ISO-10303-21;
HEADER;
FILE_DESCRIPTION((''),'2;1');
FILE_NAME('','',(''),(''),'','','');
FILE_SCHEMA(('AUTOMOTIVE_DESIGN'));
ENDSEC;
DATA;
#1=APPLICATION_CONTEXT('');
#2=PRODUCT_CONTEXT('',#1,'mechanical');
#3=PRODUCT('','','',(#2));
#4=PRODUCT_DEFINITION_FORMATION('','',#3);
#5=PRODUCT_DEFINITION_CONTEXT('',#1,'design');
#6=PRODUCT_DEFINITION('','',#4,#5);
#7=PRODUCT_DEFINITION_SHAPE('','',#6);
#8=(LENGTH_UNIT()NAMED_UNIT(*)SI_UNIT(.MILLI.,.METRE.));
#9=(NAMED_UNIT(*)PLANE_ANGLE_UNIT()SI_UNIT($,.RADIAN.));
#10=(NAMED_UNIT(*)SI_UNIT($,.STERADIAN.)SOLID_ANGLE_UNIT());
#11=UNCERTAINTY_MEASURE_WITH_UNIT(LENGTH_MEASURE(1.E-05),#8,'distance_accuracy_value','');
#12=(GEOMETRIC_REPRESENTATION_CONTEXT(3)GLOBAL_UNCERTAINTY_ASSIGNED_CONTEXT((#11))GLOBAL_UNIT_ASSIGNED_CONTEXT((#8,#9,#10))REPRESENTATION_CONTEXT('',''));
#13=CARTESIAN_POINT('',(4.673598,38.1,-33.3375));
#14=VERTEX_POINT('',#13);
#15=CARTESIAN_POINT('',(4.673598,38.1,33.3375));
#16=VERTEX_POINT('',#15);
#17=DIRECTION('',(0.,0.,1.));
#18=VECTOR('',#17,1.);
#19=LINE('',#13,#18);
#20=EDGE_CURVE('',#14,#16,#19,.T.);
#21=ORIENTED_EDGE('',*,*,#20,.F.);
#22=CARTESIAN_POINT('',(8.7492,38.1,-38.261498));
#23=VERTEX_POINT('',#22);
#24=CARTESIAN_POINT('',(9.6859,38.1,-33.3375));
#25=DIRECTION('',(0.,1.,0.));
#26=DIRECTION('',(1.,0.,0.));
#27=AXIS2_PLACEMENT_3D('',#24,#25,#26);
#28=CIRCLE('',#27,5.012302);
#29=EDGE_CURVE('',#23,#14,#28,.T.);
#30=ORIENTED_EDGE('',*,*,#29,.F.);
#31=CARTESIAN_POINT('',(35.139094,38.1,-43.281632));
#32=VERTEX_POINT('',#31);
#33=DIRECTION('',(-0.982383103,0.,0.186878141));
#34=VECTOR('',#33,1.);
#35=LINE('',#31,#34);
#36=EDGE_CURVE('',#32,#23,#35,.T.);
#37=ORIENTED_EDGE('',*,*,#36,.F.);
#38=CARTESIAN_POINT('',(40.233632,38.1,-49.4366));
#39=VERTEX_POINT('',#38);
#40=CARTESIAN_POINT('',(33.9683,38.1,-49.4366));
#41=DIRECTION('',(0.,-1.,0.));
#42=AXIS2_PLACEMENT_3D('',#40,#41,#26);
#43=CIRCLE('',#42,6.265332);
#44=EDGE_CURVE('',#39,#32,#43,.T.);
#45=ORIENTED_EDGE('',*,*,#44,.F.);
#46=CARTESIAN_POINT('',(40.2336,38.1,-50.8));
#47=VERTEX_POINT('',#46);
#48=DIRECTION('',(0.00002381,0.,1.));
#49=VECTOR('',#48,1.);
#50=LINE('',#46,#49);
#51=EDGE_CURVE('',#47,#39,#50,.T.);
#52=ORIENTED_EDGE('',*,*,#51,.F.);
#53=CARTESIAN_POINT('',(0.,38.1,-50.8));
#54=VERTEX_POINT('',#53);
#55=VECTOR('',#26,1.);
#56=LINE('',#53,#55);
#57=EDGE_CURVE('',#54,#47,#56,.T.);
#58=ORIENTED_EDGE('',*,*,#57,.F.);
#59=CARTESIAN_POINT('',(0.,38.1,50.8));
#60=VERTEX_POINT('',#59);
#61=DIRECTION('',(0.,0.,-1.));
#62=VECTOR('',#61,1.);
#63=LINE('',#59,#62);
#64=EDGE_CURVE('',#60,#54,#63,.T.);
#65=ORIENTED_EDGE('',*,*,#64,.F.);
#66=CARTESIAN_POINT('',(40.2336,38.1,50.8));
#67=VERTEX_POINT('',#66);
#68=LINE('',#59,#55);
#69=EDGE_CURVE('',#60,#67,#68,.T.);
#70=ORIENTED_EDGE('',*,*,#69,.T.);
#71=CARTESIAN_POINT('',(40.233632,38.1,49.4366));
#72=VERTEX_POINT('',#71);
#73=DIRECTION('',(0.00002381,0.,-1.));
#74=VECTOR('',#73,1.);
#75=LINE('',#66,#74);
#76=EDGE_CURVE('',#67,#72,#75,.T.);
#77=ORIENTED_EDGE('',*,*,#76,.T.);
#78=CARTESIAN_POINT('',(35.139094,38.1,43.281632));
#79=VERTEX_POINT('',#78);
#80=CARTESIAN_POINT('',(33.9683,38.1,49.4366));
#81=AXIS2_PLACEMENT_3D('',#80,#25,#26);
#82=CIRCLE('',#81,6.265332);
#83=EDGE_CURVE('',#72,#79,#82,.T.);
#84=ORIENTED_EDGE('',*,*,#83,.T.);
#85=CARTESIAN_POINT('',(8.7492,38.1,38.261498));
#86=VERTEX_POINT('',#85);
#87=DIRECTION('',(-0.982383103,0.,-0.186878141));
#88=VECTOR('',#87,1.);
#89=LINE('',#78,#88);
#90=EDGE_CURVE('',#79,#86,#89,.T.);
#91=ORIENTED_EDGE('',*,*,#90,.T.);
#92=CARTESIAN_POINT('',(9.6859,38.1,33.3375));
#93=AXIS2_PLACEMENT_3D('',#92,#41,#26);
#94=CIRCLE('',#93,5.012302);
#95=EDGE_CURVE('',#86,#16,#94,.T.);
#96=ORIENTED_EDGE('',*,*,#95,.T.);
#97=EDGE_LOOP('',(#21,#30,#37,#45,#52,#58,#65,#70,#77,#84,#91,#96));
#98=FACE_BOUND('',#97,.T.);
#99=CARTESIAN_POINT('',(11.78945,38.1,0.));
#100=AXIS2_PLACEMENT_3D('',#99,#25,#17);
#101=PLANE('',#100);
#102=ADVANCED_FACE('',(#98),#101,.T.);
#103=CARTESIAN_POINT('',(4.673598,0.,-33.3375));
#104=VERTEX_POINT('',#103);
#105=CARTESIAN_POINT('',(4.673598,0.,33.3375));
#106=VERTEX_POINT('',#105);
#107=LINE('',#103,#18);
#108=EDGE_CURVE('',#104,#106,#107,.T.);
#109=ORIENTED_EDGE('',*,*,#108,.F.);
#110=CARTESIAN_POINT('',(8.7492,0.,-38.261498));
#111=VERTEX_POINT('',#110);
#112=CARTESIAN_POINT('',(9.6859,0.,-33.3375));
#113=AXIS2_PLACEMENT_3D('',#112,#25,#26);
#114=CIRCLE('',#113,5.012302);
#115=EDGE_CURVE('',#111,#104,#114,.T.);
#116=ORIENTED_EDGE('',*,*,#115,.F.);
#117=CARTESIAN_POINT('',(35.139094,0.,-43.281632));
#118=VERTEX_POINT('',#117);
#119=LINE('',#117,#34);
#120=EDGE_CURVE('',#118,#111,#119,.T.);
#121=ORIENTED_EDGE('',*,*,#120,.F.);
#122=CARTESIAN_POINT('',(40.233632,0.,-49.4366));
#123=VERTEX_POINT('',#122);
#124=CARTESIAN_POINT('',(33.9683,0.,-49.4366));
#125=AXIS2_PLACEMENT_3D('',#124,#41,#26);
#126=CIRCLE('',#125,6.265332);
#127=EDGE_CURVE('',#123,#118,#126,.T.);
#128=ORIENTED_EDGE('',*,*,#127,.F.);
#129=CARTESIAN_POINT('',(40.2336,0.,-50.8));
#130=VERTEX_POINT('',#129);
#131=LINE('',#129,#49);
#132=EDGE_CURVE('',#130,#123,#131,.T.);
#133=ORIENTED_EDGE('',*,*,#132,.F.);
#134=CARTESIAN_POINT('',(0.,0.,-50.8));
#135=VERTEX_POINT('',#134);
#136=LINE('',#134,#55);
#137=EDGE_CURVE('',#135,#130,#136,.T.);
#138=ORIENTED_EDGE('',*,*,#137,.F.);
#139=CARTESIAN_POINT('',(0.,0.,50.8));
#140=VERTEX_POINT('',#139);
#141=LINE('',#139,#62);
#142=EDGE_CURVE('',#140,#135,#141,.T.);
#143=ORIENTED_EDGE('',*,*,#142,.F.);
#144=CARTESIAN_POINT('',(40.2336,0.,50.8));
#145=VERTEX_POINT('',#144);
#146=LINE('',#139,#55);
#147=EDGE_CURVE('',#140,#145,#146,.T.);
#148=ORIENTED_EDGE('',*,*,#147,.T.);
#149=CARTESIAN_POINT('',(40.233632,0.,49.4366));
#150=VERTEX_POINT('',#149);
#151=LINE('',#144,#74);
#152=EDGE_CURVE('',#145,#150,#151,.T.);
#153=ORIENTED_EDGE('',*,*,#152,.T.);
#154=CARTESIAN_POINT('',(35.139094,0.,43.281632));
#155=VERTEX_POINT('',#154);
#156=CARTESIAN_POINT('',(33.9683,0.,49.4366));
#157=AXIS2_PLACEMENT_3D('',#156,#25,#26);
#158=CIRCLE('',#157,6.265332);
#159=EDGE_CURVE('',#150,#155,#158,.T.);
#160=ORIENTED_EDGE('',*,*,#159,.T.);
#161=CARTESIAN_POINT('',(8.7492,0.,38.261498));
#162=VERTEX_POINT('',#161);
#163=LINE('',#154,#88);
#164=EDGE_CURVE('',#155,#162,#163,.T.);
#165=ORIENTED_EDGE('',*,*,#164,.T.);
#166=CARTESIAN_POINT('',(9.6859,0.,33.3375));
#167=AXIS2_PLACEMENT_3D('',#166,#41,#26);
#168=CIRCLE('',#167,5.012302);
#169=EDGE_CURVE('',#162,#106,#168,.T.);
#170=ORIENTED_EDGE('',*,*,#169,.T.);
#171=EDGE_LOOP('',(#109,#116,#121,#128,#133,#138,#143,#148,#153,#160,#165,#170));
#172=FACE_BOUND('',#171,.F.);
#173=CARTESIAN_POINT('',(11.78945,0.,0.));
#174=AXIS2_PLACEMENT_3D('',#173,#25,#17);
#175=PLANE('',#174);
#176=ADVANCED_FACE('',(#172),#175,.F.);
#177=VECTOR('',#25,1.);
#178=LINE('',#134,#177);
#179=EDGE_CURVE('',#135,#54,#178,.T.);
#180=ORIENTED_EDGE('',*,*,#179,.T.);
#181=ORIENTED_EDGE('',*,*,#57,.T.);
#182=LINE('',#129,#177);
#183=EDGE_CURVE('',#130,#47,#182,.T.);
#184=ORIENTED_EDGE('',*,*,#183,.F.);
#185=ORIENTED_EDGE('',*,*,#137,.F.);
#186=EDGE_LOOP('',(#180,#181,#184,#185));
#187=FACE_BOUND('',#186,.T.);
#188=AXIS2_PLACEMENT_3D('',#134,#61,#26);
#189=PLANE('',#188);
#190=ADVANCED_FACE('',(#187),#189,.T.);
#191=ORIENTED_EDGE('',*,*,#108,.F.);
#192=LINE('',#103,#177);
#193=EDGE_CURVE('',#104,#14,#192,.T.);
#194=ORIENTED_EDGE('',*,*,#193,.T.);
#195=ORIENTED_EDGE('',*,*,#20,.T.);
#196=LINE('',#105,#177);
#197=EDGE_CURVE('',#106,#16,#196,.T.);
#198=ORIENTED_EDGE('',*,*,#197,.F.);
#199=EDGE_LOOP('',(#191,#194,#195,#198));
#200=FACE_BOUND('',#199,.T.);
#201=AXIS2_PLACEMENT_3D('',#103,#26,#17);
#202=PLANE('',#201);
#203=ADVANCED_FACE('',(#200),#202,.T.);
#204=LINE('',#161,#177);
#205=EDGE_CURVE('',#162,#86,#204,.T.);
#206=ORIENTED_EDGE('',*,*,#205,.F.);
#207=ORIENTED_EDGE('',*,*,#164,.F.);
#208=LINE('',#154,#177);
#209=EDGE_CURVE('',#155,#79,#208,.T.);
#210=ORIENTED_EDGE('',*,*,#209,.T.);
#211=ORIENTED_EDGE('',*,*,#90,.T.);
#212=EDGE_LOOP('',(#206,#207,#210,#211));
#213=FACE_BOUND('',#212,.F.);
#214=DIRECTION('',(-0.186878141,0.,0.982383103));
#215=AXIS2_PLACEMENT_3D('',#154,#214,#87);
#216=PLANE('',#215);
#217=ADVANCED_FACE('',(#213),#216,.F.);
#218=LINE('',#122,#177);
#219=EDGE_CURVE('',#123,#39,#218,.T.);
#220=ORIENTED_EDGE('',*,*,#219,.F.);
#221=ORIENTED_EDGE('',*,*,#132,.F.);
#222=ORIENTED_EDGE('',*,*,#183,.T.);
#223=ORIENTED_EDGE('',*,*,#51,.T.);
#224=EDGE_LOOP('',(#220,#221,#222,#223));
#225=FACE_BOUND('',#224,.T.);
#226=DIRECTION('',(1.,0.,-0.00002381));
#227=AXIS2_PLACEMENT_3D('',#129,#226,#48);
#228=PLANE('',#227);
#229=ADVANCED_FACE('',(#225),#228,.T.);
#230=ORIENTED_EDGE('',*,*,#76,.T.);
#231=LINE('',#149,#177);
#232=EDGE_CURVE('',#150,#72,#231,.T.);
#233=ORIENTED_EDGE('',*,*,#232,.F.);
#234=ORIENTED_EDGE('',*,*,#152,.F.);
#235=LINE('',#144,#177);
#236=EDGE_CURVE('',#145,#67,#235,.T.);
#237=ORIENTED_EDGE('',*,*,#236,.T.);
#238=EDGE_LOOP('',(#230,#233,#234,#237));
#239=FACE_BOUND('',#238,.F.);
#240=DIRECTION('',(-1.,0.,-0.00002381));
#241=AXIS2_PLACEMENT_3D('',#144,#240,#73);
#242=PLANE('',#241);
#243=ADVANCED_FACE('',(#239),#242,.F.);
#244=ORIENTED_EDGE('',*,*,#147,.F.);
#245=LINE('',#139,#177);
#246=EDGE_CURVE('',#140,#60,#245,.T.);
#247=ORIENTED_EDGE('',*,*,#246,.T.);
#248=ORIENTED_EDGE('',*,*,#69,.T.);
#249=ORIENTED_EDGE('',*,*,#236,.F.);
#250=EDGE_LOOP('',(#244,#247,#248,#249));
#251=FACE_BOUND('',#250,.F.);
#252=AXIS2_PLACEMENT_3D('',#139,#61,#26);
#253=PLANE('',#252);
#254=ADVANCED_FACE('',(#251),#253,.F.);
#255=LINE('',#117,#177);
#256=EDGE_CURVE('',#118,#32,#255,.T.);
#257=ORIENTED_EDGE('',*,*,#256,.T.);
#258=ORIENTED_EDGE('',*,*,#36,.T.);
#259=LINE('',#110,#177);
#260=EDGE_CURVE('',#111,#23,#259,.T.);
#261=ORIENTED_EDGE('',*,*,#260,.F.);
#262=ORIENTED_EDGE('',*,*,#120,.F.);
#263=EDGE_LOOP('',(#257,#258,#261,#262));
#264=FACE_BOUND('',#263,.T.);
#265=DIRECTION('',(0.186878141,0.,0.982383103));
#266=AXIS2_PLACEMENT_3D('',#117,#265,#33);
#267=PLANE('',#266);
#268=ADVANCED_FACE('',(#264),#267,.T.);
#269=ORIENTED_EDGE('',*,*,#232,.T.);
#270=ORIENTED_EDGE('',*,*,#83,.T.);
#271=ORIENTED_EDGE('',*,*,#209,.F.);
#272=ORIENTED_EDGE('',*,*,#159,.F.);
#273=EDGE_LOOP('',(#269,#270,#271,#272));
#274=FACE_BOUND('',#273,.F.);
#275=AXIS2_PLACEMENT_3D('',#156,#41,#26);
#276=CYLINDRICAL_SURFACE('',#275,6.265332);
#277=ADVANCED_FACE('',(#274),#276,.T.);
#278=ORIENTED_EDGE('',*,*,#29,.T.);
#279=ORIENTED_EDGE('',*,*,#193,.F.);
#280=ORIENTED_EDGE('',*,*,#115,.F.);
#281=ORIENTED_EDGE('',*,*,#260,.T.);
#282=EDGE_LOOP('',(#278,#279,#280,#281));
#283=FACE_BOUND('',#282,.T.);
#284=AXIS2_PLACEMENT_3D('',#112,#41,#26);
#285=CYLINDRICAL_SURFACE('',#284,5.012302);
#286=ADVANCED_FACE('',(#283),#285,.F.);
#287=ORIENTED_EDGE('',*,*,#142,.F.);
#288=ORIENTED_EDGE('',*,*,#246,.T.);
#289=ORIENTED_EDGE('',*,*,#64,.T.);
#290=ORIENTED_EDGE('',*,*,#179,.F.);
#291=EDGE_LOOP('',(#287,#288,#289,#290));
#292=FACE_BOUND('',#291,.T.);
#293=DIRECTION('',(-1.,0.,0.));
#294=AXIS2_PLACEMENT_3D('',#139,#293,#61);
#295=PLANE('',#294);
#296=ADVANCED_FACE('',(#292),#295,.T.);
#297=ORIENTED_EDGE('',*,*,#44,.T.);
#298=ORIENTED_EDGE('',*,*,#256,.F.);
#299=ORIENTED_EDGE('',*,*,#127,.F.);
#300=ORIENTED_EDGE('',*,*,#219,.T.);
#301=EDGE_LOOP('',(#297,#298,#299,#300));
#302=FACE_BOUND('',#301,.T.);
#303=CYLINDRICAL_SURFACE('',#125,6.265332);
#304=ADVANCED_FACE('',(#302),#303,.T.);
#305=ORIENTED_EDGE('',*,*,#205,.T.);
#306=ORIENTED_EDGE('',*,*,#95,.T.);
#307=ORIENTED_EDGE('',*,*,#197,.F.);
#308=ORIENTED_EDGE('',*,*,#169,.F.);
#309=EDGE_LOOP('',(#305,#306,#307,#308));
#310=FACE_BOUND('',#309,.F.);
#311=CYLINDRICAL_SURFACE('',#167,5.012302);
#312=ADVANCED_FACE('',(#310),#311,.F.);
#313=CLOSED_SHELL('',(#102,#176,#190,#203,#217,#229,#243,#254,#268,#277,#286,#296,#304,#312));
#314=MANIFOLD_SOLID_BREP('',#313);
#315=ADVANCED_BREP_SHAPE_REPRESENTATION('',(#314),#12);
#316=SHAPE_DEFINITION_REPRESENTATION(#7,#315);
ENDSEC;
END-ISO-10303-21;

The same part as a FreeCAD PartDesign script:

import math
import FreeCAD as App
import Part
import Sketcher

V = App.Vector
Q = App.Units.Quantity

doc = App.newDocument("Part")
body = doc.addObject("PartDesign::Body", "Body")

sketch1 = doc.addObject("Sketcher::SketchObject", "Sketch")
body.addObject(sketch1)
sketch1.AttachmentSupport = (doc.XZ_Plane, [""])
sketch1.MapMode = "FlatFace"
sketch1.addGeometry([
    Part.LineSegment(V(40.2336, 50.8, 0), V(0, 50.8, 0)),
    Part.LineSegment(V(0, 50.8, 0), V(0, -50.8, 0)),
    Part.LineSegment(V(0, -50.8, 0), V(40.2336, -50.8, 0)),
    Part.LineSegment(V(40.2336, -50.8, 0), V(40.2336, -49.4366, 0)),
    Part.ArcOfCircle(Part.Circle(V(33.9683, -49.4366, 0), V(0, 0, 1), 6.2653), math.radians(0), math.radians(79.229904)),
    Part.LineSegment(V(35.1391, -43.2816, 0), V(8.7492, -38.2615, 0)),
    Part.ArcOfCircle(Part.Circle(V(9.6859, -33.3375, 0), V(0, 0, 1), 5.012303), math.radians(180), math.radians(259.229231)),
    Part.LineSegment(V(4.6736, -33.3375, 0), V(4.6736, 33.3375, 0)),
    Part.ArcOfCircle(Part.Circle(V(9.6859, 33.3375, 0), V(0, 0, 1), 5.012303), math.radians(100.770769), math.radians(180)),
    Part.LineSegment(V(8.7492, 38.2615, 0), V(35.1391, 43.2816, 0)),
    Part.ArcOfCircle(Part.Circle(V(33.9683, 49.4366, 0), V(0, 0, 1), 6.2653), math.radians(-79.229904), math.radians(0)),
    Part.LineSegment(V(40.2336, 49.4366, 0), V(40.2336, 50.8, 0)),
], False)
sketch1.addConstraint([
    Sketcher.Constraint("Coincident", 0, 2, 1, 1),
    Sketcher.Constraint("Coincident", 1, 2, 2, 1),
    Sketcher.Constraint("Coincident", 2, 2, 3, 1),
    Sketcher.Constraint("Tangent", 3, 2, 4, 1),
    Sketcher.Constraint("Tangent", 4, 2, 5, 1),
    Sketcher.Constraint("Tangent", 5, 2, 6, 2),
    Sketcher.Constraint("Tangent", 6, 1, 7, 1),
    Sketcher.Constraint("Tangent", 7, 2, 8, 2),
    Sketcher.Constraint("Tangent", 8, 1, 9, 1),
    Sketcher.Constraint("Tangent", 9, 2, 10, 1),
    Sketcher.Constraint("Tangent", 10, 2, 11, 1),
    Sketcher.Constraint("Coincident", 11, 2, 0, 1),
    Sketcher.Constraint("Horizontal", 0),
    Sketcher.Constraint("Vertical", 1),
    Sketcher.Constraint("Horizontal", 2),
    Sketcher.Constraint("Vertical", 3),
    Sketcher.Constraint("Vertical", 7),
    Sketcher.Constraint("Vertical", 11),
    Sketcher.Constraint("Equal", 6, 8),
    Sketcher.Constraint("Equal", 4, 10),
    Sketcher.Constraint("Symmetric", 0, 2, 1, 2, -1, 1),
    Sketcher.Constraint("Symmetric", 4, 3, 10, 3, -1),
    Sketcher.Constraint("Vertical", 5, 2, 8, 1),
    Sketcher.Constraint("DistanceY", 1, 2, 1, 1, Q("4 in")),
    Sketcher.Constraint("DistanceX", 7, 2, 10, 2, Q("1.4 in")),
    Sketcher.Constraint("DistanceX", 0, 2, 0, 1, Q("1.584 in")),
    Sketcher.Constraint("DistanceY", 7, 1, 7, 2, Q("2.625 in")),
    Sketcher.Constraint("Angle", 5, Q("169.2294 deg")),
    Sketcher.Constraint("Radius", 4, Q("6.2653 mm")),
    Sketcher.Constraint("Radius", 6, Q("5.0123 mm")),
])
pad1 = doc.addObject("PartDesign::Pad", "Pad")
body.addObject(pad1)
pad1.Profile = sketch1
pad1.Length = Q("1.5 in")
pad1.Reversed = True

doc.recompute()
